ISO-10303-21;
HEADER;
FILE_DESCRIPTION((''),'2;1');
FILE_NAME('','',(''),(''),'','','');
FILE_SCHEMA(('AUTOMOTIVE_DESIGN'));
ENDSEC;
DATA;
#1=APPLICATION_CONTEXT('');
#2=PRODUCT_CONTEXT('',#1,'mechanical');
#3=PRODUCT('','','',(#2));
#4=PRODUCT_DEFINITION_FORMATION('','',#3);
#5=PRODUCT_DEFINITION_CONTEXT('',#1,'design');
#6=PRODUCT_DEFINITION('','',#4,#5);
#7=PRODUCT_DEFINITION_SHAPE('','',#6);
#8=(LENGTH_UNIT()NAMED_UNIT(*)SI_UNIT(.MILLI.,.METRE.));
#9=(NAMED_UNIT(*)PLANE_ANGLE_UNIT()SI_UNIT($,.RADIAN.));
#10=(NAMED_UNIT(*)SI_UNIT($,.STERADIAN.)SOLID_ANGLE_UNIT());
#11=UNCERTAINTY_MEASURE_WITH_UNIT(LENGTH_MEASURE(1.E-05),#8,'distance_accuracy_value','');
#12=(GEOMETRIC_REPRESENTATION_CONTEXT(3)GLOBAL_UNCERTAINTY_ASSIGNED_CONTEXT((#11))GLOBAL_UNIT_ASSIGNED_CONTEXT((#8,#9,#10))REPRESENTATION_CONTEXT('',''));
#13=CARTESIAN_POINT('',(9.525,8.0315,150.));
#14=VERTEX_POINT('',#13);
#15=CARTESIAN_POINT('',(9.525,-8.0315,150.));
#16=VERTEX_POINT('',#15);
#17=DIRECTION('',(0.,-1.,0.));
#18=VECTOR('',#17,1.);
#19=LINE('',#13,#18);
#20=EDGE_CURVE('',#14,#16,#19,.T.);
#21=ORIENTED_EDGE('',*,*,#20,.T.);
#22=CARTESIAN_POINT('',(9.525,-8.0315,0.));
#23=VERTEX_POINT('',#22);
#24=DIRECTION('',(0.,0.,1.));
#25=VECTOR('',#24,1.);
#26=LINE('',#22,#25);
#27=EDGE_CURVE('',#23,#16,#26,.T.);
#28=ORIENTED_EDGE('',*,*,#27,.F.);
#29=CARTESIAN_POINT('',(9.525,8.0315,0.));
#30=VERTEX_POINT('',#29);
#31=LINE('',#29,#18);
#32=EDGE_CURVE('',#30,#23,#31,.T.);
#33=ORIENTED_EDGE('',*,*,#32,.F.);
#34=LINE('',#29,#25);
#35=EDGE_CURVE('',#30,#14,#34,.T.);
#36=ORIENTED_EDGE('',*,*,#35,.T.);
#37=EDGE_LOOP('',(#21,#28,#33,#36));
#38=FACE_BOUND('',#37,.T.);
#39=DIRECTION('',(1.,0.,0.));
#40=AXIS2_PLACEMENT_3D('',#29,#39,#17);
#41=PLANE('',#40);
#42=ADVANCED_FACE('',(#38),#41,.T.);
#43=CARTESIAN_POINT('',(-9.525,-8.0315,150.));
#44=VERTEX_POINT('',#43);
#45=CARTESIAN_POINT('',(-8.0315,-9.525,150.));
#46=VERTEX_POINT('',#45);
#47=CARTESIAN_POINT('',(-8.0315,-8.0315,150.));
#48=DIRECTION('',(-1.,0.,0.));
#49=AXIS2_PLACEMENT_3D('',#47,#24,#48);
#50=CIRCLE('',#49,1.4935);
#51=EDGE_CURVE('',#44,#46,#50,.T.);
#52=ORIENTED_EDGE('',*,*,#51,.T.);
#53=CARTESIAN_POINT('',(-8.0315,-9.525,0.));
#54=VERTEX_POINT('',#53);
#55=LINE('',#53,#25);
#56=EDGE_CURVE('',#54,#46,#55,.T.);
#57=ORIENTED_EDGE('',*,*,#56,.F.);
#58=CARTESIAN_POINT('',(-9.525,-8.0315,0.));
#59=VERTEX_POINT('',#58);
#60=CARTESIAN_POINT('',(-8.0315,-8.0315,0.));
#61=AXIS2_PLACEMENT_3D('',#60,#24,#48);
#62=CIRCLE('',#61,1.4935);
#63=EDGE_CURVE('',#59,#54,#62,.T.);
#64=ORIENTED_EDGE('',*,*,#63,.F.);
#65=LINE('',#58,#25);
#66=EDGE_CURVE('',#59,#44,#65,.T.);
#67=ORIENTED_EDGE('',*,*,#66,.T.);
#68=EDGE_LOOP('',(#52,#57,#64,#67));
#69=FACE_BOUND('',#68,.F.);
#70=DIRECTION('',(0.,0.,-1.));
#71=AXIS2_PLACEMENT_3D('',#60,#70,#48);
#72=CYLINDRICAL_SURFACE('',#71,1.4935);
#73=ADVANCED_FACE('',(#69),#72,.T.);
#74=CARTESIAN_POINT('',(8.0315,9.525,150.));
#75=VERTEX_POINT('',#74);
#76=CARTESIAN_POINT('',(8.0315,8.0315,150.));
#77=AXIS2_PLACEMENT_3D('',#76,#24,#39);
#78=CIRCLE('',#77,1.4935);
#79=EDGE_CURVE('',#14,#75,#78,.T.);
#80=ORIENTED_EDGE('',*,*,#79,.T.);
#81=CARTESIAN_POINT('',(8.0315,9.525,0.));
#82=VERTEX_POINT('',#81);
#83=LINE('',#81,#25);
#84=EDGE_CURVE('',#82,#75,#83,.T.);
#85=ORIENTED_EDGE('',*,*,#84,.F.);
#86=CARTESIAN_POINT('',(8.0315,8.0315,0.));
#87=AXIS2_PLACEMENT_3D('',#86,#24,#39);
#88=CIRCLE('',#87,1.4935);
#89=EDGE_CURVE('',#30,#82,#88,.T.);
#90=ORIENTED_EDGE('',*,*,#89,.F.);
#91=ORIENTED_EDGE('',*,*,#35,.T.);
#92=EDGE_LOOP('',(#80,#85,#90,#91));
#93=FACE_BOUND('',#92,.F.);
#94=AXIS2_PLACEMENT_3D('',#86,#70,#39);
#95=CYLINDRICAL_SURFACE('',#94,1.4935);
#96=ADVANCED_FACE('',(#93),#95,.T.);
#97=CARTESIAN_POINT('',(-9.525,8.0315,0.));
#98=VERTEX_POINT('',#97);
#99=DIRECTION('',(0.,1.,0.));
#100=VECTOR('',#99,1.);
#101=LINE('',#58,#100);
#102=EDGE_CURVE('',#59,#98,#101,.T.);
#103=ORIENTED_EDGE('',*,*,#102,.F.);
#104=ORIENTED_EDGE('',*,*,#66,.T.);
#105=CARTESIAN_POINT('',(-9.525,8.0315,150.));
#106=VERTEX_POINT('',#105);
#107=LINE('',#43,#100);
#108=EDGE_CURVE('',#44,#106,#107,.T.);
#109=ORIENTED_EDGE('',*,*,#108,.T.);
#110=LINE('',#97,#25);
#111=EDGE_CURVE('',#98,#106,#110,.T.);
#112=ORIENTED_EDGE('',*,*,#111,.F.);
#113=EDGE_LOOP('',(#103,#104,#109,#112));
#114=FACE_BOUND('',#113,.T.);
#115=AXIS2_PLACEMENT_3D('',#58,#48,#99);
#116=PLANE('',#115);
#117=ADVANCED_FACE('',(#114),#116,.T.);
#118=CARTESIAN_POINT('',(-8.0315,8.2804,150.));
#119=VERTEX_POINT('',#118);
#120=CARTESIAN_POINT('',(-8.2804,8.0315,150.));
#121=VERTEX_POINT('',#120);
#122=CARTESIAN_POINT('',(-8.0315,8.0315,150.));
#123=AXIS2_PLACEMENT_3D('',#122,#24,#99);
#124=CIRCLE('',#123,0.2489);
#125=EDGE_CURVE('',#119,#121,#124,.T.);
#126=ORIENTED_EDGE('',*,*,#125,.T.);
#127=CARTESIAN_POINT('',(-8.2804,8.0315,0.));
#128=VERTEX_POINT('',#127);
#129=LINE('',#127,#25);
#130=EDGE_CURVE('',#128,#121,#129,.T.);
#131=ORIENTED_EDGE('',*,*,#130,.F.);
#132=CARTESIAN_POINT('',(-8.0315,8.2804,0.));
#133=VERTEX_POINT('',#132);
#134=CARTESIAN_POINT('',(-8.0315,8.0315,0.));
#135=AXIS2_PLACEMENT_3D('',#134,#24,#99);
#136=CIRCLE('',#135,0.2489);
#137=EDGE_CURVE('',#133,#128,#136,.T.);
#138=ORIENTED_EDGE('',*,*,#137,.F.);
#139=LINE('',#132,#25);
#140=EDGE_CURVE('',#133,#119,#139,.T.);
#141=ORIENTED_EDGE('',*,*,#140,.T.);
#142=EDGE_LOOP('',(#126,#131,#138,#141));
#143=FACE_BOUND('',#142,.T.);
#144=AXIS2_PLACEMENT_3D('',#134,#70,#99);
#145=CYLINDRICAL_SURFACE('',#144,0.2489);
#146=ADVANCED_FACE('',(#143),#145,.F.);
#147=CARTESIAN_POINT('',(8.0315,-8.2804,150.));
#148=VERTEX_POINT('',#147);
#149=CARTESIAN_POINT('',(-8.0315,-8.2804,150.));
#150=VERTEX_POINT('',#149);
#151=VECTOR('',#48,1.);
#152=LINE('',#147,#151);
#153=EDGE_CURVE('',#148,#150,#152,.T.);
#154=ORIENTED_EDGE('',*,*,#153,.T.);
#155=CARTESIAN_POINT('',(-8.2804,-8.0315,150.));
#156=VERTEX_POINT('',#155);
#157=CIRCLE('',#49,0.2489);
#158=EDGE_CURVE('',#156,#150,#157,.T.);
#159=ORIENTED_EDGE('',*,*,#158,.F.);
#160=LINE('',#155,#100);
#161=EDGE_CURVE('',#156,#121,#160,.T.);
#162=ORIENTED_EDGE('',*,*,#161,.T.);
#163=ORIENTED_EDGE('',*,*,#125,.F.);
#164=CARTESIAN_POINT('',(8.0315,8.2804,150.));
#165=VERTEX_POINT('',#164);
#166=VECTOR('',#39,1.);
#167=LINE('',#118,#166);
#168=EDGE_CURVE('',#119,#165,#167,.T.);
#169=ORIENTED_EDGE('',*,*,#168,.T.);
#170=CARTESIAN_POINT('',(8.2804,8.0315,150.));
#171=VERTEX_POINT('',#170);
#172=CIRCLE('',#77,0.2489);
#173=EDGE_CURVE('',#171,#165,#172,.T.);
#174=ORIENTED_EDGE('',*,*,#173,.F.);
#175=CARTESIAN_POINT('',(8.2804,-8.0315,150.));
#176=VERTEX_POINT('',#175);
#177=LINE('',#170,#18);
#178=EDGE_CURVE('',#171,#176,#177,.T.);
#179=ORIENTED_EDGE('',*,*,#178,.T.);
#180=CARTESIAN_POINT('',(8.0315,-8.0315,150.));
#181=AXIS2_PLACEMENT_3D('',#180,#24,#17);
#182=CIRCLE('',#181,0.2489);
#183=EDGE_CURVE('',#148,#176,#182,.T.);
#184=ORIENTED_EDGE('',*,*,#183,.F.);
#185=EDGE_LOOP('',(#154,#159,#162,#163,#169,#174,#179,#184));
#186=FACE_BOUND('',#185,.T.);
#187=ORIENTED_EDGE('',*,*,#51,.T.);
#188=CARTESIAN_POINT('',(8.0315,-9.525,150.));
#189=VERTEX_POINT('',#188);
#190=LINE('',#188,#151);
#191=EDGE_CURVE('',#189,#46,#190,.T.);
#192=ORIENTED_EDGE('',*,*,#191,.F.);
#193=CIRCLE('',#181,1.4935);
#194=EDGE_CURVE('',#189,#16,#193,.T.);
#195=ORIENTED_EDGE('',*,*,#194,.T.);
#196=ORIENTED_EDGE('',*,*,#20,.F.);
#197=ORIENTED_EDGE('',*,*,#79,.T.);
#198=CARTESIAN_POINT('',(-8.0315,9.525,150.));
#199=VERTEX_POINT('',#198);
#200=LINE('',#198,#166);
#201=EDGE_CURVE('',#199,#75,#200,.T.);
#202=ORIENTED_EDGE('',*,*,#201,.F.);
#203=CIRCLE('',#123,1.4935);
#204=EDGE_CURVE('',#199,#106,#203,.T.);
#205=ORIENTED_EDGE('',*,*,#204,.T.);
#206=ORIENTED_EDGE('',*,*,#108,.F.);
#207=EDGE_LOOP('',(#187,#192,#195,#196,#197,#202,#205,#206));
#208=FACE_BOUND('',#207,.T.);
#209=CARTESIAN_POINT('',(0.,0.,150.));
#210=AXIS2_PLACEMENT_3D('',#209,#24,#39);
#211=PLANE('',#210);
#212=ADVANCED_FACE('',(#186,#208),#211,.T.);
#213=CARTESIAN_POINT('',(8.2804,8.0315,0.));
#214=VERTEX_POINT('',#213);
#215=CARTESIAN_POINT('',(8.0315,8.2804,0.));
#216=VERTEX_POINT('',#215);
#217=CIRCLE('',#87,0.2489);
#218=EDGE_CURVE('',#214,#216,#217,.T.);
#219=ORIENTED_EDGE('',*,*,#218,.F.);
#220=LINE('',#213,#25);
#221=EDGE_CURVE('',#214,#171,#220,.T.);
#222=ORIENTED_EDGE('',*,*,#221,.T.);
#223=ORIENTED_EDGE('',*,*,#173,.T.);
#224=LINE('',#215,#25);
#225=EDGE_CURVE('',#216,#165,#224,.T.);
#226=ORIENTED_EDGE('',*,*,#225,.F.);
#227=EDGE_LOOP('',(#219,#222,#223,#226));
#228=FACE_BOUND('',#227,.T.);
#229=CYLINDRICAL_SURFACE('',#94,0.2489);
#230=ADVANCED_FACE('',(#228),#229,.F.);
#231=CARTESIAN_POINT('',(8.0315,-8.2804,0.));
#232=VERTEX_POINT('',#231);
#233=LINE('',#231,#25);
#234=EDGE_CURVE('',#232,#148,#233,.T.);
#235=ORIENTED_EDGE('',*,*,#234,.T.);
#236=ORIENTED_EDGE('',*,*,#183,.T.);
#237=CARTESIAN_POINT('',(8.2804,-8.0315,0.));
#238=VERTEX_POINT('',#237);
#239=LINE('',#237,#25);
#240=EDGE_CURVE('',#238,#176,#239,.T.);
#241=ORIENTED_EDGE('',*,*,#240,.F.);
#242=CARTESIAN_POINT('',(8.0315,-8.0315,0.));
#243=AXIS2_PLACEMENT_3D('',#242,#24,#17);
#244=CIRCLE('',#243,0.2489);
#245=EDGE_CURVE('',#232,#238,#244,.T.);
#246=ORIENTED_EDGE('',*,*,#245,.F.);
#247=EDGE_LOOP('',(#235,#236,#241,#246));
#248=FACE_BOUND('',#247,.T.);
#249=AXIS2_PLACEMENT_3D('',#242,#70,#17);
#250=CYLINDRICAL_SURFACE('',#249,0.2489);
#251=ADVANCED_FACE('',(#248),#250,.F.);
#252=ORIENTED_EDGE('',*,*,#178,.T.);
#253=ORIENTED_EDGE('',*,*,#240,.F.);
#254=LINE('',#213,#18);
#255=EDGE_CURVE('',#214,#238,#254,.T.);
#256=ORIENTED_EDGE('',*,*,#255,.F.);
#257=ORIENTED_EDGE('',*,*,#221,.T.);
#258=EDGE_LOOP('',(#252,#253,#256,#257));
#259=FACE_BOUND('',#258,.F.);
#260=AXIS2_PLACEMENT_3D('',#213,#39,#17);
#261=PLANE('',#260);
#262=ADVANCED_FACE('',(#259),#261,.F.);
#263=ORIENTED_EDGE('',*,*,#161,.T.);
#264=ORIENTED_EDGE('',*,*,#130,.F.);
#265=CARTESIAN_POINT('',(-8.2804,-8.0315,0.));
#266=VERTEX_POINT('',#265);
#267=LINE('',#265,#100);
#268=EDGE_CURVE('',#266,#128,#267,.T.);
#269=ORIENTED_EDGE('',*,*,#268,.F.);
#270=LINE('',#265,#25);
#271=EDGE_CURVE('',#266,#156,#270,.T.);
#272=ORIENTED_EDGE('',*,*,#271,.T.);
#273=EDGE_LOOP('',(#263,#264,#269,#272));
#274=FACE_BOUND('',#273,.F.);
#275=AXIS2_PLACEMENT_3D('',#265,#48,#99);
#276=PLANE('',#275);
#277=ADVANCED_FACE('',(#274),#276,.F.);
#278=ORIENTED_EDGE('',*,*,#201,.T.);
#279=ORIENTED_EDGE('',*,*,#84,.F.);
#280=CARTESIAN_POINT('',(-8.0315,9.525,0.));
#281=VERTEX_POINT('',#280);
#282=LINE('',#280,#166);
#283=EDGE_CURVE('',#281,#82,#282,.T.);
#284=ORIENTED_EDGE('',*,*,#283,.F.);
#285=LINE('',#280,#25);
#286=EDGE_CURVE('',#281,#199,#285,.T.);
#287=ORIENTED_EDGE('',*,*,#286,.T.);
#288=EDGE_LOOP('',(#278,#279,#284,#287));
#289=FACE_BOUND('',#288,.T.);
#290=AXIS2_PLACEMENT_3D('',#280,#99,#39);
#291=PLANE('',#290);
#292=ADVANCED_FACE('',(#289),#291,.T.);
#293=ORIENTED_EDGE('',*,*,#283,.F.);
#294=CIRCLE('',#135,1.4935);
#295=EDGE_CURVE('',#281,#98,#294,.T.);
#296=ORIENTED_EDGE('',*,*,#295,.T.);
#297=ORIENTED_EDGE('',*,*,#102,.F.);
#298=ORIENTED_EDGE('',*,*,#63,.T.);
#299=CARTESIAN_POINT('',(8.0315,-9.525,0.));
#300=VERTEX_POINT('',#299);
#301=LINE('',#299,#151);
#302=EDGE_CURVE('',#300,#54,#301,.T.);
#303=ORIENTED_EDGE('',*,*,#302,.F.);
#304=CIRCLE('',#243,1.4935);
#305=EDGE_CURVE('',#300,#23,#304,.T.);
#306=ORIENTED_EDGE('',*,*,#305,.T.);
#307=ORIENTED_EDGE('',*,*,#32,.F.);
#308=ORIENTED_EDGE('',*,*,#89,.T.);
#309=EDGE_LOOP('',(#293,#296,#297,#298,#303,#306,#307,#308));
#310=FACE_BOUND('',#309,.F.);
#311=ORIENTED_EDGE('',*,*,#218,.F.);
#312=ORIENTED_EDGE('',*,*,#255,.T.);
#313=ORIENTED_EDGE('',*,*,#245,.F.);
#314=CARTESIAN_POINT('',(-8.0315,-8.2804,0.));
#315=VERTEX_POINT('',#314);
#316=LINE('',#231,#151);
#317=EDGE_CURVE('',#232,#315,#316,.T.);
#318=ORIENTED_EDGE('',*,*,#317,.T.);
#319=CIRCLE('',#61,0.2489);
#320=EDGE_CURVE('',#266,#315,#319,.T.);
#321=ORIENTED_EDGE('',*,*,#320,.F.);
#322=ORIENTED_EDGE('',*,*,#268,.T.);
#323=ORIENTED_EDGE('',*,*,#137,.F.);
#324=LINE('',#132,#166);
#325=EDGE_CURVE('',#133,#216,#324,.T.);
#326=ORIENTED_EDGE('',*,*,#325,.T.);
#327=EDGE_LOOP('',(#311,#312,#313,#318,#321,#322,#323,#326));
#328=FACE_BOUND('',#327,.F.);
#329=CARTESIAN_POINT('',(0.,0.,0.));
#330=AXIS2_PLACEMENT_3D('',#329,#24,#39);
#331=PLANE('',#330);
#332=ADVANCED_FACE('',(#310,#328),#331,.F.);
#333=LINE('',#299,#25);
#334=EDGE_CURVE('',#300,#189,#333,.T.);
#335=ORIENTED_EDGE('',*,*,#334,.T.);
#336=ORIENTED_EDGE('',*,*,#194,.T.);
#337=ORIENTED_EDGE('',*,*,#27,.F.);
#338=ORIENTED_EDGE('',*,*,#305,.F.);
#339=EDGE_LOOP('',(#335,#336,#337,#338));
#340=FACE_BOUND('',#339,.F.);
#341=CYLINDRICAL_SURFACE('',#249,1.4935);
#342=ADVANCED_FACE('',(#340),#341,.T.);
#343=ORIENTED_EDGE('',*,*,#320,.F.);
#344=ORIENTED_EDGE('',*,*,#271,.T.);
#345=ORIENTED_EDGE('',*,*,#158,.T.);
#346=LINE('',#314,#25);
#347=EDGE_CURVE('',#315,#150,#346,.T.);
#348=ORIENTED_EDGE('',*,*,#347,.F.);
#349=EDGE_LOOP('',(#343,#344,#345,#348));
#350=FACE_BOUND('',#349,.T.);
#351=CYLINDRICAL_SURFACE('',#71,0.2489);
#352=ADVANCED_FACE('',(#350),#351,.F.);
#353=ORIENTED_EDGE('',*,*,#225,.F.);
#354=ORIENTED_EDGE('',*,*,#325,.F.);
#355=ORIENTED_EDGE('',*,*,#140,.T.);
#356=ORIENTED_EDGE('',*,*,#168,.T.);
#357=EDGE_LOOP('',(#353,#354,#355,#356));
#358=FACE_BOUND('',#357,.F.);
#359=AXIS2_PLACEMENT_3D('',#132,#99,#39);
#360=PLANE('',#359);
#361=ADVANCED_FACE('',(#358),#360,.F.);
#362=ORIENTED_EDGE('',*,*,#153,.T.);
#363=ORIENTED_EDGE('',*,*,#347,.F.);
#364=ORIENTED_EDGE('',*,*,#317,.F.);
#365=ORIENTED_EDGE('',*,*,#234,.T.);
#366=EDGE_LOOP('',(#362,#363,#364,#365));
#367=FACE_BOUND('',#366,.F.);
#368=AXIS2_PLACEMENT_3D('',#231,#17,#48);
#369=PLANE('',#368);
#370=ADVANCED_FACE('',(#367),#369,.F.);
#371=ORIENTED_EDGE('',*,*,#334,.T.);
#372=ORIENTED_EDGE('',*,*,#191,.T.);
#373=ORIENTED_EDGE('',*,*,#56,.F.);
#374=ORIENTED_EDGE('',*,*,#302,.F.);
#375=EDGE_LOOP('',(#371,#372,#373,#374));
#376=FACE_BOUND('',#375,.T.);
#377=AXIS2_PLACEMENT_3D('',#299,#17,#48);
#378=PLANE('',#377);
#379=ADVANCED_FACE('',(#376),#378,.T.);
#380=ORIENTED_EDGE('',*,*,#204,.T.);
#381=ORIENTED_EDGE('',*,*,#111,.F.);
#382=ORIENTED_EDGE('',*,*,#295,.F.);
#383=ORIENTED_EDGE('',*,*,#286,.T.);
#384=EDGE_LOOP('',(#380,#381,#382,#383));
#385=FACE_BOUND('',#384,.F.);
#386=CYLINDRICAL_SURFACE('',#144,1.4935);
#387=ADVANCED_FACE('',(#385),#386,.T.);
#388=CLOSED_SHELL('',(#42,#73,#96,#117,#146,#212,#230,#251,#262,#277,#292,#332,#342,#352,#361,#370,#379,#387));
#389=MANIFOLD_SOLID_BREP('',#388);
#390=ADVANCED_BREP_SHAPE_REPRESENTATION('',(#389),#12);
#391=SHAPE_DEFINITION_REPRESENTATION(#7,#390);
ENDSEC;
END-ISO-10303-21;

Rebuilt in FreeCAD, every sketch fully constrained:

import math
import FreeCAD as App
import Part
import Sketcher

V = App.Vector

doc = App.newDocument("Part")
body = doc.addObject("PartDesign::Body", "Body")

# Sketch on XY plane
sketch1 = body.newObject("Sketcher::SketchObject", "Sketch")
sketch1.AttachmentSupport = (doc.getObject("XY_Plane"), [""])
sketch1.MapMode = "FlatFace"
sketch1.addGeometry(Part.LineSegment(V(-9.53, 8.03, 0), V(-9.53, -8.03, 0)), False)
sketch1.addGeometry(Part.ArcOfCircle(Part.Circle(V(-8.03, -8.03, 0), V(0, 0, 1), 1.49), math.radians(180), math.radians(270)), False)
sketch1.addGeometry(Part.LineSegment(V(-8.03, -9.53, 0), V(8.03, -9.53, 0)), False)
sketch1.addGeometry(Part.ArcOfCircle(Part.Circle(V(8.03, -8.03, 0), V(0, 0, 1), 1.49), math.radians(-90), math.radians(0)), False)
sketch1.addGeometry(Part.LineSegment(V(9.53, -8.03, 0), V(9.53, 8.03, 0)), False)
sketch1.addGeometry(Part.ArcOfCircle(Part.Circle(V(8.03, 8.03, 0), V(0, 0, 1), 1.49), math.radians(0), math.radians(90)), False)
sketch1.addGeometry(Part.LineSegment(V(8.03, 9.53, 0), V(-8.03, 9.53, 0)), False)
sketch1.addGeometry(Part.ArcOfCircle(Part.Circle(V(-8.03, 8.03, 0), V(0, 0, 1), 1.49), math.radians(90), math.radians(180)), False)
sketch1.addGeometry(Part.ArcOfCircle(Part.Circle(V(-8.03, 8.03, 0), V(0, 0, 1), 0.25), math.radians(90), math.radians(180)), False)
sketch1.addGeometry(Part.LineSegment(V(-8.03, 8.28, 0), V(8.03, 8.28, 0)), False)
sketch1.addGeometry(Part.ArcOfCircle(Part.Circle(V(8.03, 8.03, 0), V(0, 0, 1), 0.25), math.radians(0), math.radians(90)), False)
sketch1.addGeometry(Part.LineSegment(V(8.28, 8.03, 0), V(8.28, -8.03, 0)), False)
sketch1.addGeometry(Part.ArcOfCircle(Part.Circle(V(8.03, -8.03, 0), V(0, 0, 1), 0.25), math.radians(-90), math.radians(0)), False)
sketch1.addGeometry(Part.LineSegment(V(8.03, -8.28, 0), V(-8.03, -8.28, 0)), False)
sketch1.addGeometry(Part.ArcOfCircle(Part.Circle(V(-8.03, -8.03, 0), V(0, 0, 1), 0.25), math.radians(180), math.radians(270)), False)
sketch1.addGeometry(Part.LineSegment(V(-8.28, -8.03, 0), V(-8.28, 8.03, 0)), False)
sketch1.addConstraint(Sketcher.Constraint("Tangent", 0, 2, 1, 1))
sketch1.addConstraint(Sketcher.Constraint("Tangent", 1, 2, 2, 1))
sketch1.addConstraint(Sketcher.Constraint("Tangent", 2, 2, 3, 1))
sketch1.addConstraint(Sketcher.Constraint("Tangent", 3, 2, 4, 1))
sketch1.addConstraint(Sketcher.Constraint("Tangent", 4, 2, 5, 1))
sketch1.addConstraint(Sketcher.Constraint("Tangent", 5, 2, 6, 1))
sketch1.addConstraint(Sketcher.Constraint("Tangent", 6, 2, 7, 1))
sketch1.addConstraint(Sketcher.Constraint("Tangent", 7, 2, 0, 1))
sketch1.addConstraint(Sketcher.Constraint("Tangent", 8, 1, 9, 1))
sketch1.addConstraint(Sketcher.Constraint("Tangent", 9, 2, 10, 2))
sketch1.addConstraint(Sketcher.Constraint("Tangent", 10, 1, 11, 1))
sketch1.addConstraint(Sketcher.Constraint("Tangent", 11, 2, 12, 2))
sketch1.addConstraint(Sketcher.Constraint("Tangent", 12, 1, 13, 1))
sketch1.addConstraint(Sketcher.Constraint("Tangent", 13, 2, 14, 2))
sketch1.addConstraint(Sketcher.Constraint("Tangent", 14, 1, 15, 1))
sketch1.addConstraint(Sketcher.Constraint("Tangent", 15, 2, 8, 2))
sketch1.addConstraint(Sketcher.Constraint("Vertical", 0))
sketch1.addConstraint(Sketcher.Constraint("Horizontal", 2))
sketch1.addConstraint(Sketcher.Constraint("Vertical", 4))
sketch1.addConstraint(Sketcher.Constraint("Horizontal", 6))
sketch1.addConstraint(Sketcher.Constraint("Horizontal", 9))
sketch1.addConstraint(Sketcher.Constraint("Vertical", 11))
sketch1.addConstraint(Sketcher.Constraint("Horizontal", 13))
sketch1.addConstraint(Sketcher.Constraint("Vertical", 15))
sketch1.addConstraint(Sketcher.Constraint("Coincident", 8, 3, 7, 3))
sketch1.addConstraint(Sketcher.Constraint("Coincident", 10, 3, 5, 3))
sketch1.addConstraint(Sketcher.Constraint("Coincident", 12, 3, 3, 3))
sketch1.addConstraint(Sketcher.Constraint("Equal", 1, 3))
sketch1.addConstraint(Sketcher.Constraint("Equal", 3, 5))
sketch1.addConstraint(Sketcher.Constraint("Equal", 5, 7))
sketch1.addConstraint(Sketcher.Constraint("Equal", 12, 14))
sketch1.addConstraint(Sketcher.Constraint("Symmetric", 1, 3, 5, 3, -1, 1))
sketch1.addConstraint(Sketcher.Constraint("Equal", 13, 0))
sketch1.addConstraint(Sketcher.Constraint("Radius", 1, 1.4935))
sketch1.addConstraint(Sketcher.Constraint("DistanceX", 0, 2, -1, 1, 9.525))
sketch1.addConstraint(Sketcher.Constraint("Radius", 8, 0.249))
pad1 = body.newObject("PartDesign::Pad", "Pad")
pad1.Profile = sketch1
pad1.Length = 150

doc.recompute()
